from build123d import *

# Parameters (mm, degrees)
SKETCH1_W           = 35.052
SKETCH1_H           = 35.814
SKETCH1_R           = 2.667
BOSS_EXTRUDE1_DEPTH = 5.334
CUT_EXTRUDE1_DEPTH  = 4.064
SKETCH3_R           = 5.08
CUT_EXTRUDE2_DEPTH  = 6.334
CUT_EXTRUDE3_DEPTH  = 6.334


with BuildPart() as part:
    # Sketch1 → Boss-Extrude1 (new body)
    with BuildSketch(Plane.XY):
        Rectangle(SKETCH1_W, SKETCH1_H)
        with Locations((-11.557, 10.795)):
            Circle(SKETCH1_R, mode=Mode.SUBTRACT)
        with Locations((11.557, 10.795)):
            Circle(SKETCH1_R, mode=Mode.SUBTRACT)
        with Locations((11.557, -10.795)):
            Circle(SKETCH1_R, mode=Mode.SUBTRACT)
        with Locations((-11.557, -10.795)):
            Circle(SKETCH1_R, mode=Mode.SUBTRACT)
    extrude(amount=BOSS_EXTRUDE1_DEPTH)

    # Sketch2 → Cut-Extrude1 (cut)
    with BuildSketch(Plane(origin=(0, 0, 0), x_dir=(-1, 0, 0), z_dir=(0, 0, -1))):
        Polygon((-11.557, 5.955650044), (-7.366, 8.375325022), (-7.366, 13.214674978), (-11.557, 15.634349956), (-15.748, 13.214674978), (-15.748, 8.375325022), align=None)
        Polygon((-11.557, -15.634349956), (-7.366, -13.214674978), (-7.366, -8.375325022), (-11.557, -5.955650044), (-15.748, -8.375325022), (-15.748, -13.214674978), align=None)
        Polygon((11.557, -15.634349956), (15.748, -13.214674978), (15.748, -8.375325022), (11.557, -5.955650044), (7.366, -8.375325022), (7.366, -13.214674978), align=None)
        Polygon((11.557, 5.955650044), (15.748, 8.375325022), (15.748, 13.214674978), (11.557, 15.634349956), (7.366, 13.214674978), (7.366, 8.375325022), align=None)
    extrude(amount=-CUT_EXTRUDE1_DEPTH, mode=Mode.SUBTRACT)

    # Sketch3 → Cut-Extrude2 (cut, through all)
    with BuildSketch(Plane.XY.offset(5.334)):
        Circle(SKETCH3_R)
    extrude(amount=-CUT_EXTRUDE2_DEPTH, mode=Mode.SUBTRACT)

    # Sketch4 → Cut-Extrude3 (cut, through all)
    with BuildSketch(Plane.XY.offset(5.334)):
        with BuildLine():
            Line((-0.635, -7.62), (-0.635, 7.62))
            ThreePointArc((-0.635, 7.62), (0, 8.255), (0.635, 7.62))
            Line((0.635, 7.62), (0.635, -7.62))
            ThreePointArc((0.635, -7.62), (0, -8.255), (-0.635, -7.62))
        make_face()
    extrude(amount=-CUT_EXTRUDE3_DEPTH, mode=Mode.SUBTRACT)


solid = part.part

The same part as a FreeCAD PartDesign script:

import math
import FreeCAD as App
import Part
import Sketcher

V = App.Vector
Q = App.Units.Quantity


def add_polygon(sketch, points):
    """Adds a closed chain of lines whose ends are joined by coincident constraints."""
    first, n = sketch.GeometryCount, len(points)
    for a, b in zip(points, points[1:] + points[:1]):
        sketch.addGeometry(Part.LineSegment(App.Vector(*a, 0), App.Vector(*b, 0)), False)
    for i in range(n):
        sketch.addConstraint(Sketcher.Constraint("Coincident", first + i, 2, first + (i + 1) % n, 1))

doc = App.newDocument("Part")
params = doc.addObject("Spreadsheet::Sheet", "Params")
for row, (alias, value) in enumerate([
    ("sketch1_diameter", "0.21 in"),
    ("sketch1_width", "1.38 in"),
    ("sketch1_height", "1.41 in"),
    ("pad1_length", "0.21 in"),
    ("pocket1_length", "0.16 in"),
    ("sketch3_diameter", "0.4 in"),
    ("sketch4_height", "0.6 in"),
    ("sketch4_radius", "0.025 in"),
], start=1):
    params.set(f"A{row}", alias)
    params.set(f"B{row}", "=" + value)
    params.setAlias(f"B{row}", alias)

body = doc.addObject("PartDesign::Body", "Body")

sketch1 = body.newObject("Sketcher::SketchObject", "Sketch")
sketch1.AttachmentSupport = (doc.getObject("XY_Plane"), [""])
sketch1.MapMode = "FlatFace"
add_polygon(sketch1, [(-17.5, 17.9), (-17.5, -17.9), (17.5, -17.9), (17.5, 17.9)])
sketch1.addGeometry(Part.Circle(V(-11.6, -10.8, 0), V(0, 0, 1), 2.7), False)
sketch1.addGeometry(Part.Circle(V(11.6, -10.8, 0), V(0, 0, 1), 2.7), False)
sketch1.addGeometry(Part.Circle(V(-11.6, 10.8, 0), V(0, 0, 1), 2.7), False)
sketch1.addGeometry(Part.Circle(V(11.6, 10.8, 0), V(0, 0, 1), 2.7), False)
sketch1.addConstraint([
    Sketcher.Constraint("Vertical", 0),
    Sketcher.Constraint("Horizontal", 1),
    Sketcher.Constraint("Vertical", 2),
    Sketcher.Constraint("Horizontal", 3),
    Sketcher.Constraint("Equal", 4, 5),
    Sketcher.Constraint("Equal", 5, 6),
    Sketcher.Constraint("Equal", 6, 7),
    Sketcher.Constraint("Symmetric", 5, 3, 6, 3, -1, 1),
    Sketcher.Constraint("Symmetric", 4, 3, 7, 3, -1, 1),
    Sketcher.Constraint("Symmetric", 0, 2, 2, 2, -1, 1),
    Sketcher.Constraint("Symmetric", 4, 3, 5, 3, -2),
    Sketcher.Constraint("Diameter", 4, Q("0.21 in")),
    Sketcher.Constraint("DistanceX", 1, 1, 1, 2, Q("1.38 in")),
    Sketcher.Constraint("DistanceY", 0, 2, 0, 1, Q("1.41 in")),
    Sketcher.Constraint("DistanceX", 4, 3, 5, 3, Q("0.91 in")),
    Sketcher.Constraint("DistanceY", 4, 3, 6, 3, Q("0.85 in")),
])
sketch1.setExpression("Constraints[15]", "Params.sketch1_diameter")
sketch1.setExpression("Constraints[16]", "Params.sketch1_width")
sketch1.setExpression("Constraints[17]", "Params.sketch1_height")
pad1 = body.newObject("PartDesign::Pad", "Pad")
pad1.Profile = sketch1
pad1.setExpression("Length", "Params.pad1_length")

sketch2 = body.newObject("Sketcher::SketchObject", "Sketch001")
sketch2.AttachmentSupport = (doc.getObject("XY_Plane"), [""])
sketch2.MapMode = "FlatFace"
add_polygon(sketch2, [(11.6, 6), (7.4, 8.4), (7.4, 13.2), (11.6, 15.6), (15.7, 13.2), (15.7, 8.4)])
add_polygon(sketch2, [(11.6, -15.6), (7.4, -13.2), (7.4, -8.4), (11.6, -6), (15.7, -8.4), (15.7, -13.2)])
add_polygon(sketch2, [(-11.6, -15.6), (-15.7, -13.2), (-15.7, -8.4), (-11.6, -6), (-7.4, -8.4), (-7.4, -13.2)])
add_polygon(sketch2, [(-11.6, 6), (-15.7, 8.4), (-15.7, 13.2), (-11.6, 15.6), (-7.4, 13.2), (-7.4, 8.4)])
sketch2.addConstraint([
    Sketcher.Constraint("Vertical", 1),
    Sketcher.Constraint("Vertical", 4),
    Sketcher.Constraint("Vertical", 7),
    Sketcher.Constraint("Vertical", 10),
    Sketcher.Constraint("Vertical", 13),
    Sketcher.Constraint("Vertical", 16),
    Sketcher.Constraint("Vertical", 19),
    Sketcher.Constraint("Vertical", 22),
    Sketcher.Constraint("Symmetric", 3, 2, 12, 2, -1, 1),
    Sketcher.Constraint("Symmetric", 5, 2, 14, 2, -1, 1),
    Sketcher.Constraint("Symmetric", 0, 2, 15, 2, -1, 1),
    Sketcher.Constraint("Symmetric", 2, 2, 17, 2, -1, 1),
    Sketcher.Constraint("Symmetric", 9, 2, 18, 2, -1, 1),
    Sketcher.Constraint("Symmetric", 11, 2, 20, 2, -1, 1),
    Sketcher.Constraint("Symmetric", 6, 2, 21, 2, -1, 1),
    Sketcher.Constraint("Symmetric", 8, 2, 23, 2, -1, 1),
    Sketcher.Constraint("Symmetric", 10, 2, 12, 2, -2),
    Sketcher.Constraint("Symmetric", 8, 2, 14, 2, -2),
    Sketcher.Constraint("Symmetric", 7, 2, 15, 2, -2),
    Sketcher.Constraint("Symmetric", 11, 2, 17, 2, -2),
    Sketcher.Constraint("Parallel", 0, 3),
    Sketcher.Constraint("Parallel", 2, 5),
    Sketcher.Constraint("Parallel", 3, 6),
    Sketcher.Constraint("Parallel", 5, 8),
    Sketcher.Constraint("Parallel", 6, 9),
    Sketcher.Constraint("Parallel", 11, 14),
    Sketcher.Constraint("Parallel", 14, 17),
    Sketcher.Constraint("Parallel", 17, 20),
    Sketcher.Constraint("Parallel", 20, 23),
    Sketcher.Constraint("Horizontal", 1, 2, 3, 2),
    Sketcher.Constraint("Horizontal", 0, 2, 4, 2),
    Sketcher.Constraint("Angle", 0, Q("150 deg")),
    Sketcher.Constraint("DistanceX", -1, 1, 0, 2, Q("0.29 in")),
    Sketcher.Constraint("DistanceX", -1, 1, 3, 2, Q("0.62 in")),
    Sketcher.Constraint("DistanceY", 6, 2, 0, 2, Q("0.85 in")),
    Sketcher.Constraint("DistanceY", 1, 1, 1, 2, 4.83935),
])
pocket1 = body.newObject("PartDesign::Pocket", "Pocket")
pocket1.Profile = sketch2
pocket1.setExpression("Length", "Params.pocket1_length")
pocket1.Reversed = True

sketch3 = body.newObject("Sketcher::SketchObject", "Sketch002")
sketch3.AttachmentSupport = (doc.getObject("XY_Plane"), [""])
sketch3.MapMode = "FlatFace"
sketch3.AttachmentOffset = App.Placement(V(0, 0, 0.21 * 25.4), App.Rotation())
sketch3.addGeometry(Part.Circle(V(0, 0, 0), V(0, 0, 1), 5), False)
sketch3.addConstraint([
    Sketcher.Constraint("Coincident", 0, 3, -1, 1),
    Sketcher.Constraint("Diameter", 0, Q("0.4 in")),
])
sketch3.setExpression("Constraints[1]", "Params.sketch3_diameter")
pocket2 = body.newObject("PartDesign::Pocket", "Pocket001")
pocket2.Profile = sketch3
pocket2.Type = "ThroughAll"

sketch4 = body.newObject("Sketcher::SketchObject", "Sketch003")
sketch4.AttachmentSupport = (doc.getObject("XY_Plane"), [""])
sketch4.MapMode = "FlatFace"
sketch4.AttachmentOffset = App.Placement(V(0, 0, 0.21 * 25.4), App.Rotation())
sketch4.addGeometry([
    Part.LineSegment(V(-0.6, 7.6, 0), V(-0.6, -7.6, 0)),
    Part.ArcOfCircle(Part.Circle(V(0, -7.6, 0), V(0, 0, 1), 0.6), math.radians(180), math.radians(360)),
    Part.LineSegment(V(0.6, -7.6, 0), V(0.6, 7.6, 0)),
    Part.ArcOfCircle(Part.Circle(V(0, 7.6, 0), V(0, 0, 1), 0.6), math.radians(0), math.radians(180)),
], False)
sketch4.addConstraint([
    Sketcher.Constraint("Tangent", 0, 2, 1, 1),
    Sketcher.Constraint("Tangent", 1, 2, 2, 1),
    Sketcher.Constraint("Tangent", 2, 2, 3, 1),
    Sketcher.Constraint("Tangent", 3, 2, 0, 1),
    Sketcher.Constraint("Vertical", 0),
    Sketcher.Constraint("Vertical", 2),
    Sketcher.Constraint("Symmetric", 1, 3, 3, 3, -1, 1),
    Sketcher.Constraint("DistanceY", 0, 2, 0, 1, Q("0.6 in")),
    Sketcher.Constraint("Radius", 1, Q("0.025 in")),
])
sketch4.setExpression("Constraints[7]", "Params.sketch4_height")
sketch4.setExpression("Constraints[8]", "Params.sketch4_radius")
pocket3 = body.newObject("PartDesign::Pocket", "Pocket002")
pocket3.Profile = sketch4
pocket3.Type = "ThroughAll"

doc.recompute()
